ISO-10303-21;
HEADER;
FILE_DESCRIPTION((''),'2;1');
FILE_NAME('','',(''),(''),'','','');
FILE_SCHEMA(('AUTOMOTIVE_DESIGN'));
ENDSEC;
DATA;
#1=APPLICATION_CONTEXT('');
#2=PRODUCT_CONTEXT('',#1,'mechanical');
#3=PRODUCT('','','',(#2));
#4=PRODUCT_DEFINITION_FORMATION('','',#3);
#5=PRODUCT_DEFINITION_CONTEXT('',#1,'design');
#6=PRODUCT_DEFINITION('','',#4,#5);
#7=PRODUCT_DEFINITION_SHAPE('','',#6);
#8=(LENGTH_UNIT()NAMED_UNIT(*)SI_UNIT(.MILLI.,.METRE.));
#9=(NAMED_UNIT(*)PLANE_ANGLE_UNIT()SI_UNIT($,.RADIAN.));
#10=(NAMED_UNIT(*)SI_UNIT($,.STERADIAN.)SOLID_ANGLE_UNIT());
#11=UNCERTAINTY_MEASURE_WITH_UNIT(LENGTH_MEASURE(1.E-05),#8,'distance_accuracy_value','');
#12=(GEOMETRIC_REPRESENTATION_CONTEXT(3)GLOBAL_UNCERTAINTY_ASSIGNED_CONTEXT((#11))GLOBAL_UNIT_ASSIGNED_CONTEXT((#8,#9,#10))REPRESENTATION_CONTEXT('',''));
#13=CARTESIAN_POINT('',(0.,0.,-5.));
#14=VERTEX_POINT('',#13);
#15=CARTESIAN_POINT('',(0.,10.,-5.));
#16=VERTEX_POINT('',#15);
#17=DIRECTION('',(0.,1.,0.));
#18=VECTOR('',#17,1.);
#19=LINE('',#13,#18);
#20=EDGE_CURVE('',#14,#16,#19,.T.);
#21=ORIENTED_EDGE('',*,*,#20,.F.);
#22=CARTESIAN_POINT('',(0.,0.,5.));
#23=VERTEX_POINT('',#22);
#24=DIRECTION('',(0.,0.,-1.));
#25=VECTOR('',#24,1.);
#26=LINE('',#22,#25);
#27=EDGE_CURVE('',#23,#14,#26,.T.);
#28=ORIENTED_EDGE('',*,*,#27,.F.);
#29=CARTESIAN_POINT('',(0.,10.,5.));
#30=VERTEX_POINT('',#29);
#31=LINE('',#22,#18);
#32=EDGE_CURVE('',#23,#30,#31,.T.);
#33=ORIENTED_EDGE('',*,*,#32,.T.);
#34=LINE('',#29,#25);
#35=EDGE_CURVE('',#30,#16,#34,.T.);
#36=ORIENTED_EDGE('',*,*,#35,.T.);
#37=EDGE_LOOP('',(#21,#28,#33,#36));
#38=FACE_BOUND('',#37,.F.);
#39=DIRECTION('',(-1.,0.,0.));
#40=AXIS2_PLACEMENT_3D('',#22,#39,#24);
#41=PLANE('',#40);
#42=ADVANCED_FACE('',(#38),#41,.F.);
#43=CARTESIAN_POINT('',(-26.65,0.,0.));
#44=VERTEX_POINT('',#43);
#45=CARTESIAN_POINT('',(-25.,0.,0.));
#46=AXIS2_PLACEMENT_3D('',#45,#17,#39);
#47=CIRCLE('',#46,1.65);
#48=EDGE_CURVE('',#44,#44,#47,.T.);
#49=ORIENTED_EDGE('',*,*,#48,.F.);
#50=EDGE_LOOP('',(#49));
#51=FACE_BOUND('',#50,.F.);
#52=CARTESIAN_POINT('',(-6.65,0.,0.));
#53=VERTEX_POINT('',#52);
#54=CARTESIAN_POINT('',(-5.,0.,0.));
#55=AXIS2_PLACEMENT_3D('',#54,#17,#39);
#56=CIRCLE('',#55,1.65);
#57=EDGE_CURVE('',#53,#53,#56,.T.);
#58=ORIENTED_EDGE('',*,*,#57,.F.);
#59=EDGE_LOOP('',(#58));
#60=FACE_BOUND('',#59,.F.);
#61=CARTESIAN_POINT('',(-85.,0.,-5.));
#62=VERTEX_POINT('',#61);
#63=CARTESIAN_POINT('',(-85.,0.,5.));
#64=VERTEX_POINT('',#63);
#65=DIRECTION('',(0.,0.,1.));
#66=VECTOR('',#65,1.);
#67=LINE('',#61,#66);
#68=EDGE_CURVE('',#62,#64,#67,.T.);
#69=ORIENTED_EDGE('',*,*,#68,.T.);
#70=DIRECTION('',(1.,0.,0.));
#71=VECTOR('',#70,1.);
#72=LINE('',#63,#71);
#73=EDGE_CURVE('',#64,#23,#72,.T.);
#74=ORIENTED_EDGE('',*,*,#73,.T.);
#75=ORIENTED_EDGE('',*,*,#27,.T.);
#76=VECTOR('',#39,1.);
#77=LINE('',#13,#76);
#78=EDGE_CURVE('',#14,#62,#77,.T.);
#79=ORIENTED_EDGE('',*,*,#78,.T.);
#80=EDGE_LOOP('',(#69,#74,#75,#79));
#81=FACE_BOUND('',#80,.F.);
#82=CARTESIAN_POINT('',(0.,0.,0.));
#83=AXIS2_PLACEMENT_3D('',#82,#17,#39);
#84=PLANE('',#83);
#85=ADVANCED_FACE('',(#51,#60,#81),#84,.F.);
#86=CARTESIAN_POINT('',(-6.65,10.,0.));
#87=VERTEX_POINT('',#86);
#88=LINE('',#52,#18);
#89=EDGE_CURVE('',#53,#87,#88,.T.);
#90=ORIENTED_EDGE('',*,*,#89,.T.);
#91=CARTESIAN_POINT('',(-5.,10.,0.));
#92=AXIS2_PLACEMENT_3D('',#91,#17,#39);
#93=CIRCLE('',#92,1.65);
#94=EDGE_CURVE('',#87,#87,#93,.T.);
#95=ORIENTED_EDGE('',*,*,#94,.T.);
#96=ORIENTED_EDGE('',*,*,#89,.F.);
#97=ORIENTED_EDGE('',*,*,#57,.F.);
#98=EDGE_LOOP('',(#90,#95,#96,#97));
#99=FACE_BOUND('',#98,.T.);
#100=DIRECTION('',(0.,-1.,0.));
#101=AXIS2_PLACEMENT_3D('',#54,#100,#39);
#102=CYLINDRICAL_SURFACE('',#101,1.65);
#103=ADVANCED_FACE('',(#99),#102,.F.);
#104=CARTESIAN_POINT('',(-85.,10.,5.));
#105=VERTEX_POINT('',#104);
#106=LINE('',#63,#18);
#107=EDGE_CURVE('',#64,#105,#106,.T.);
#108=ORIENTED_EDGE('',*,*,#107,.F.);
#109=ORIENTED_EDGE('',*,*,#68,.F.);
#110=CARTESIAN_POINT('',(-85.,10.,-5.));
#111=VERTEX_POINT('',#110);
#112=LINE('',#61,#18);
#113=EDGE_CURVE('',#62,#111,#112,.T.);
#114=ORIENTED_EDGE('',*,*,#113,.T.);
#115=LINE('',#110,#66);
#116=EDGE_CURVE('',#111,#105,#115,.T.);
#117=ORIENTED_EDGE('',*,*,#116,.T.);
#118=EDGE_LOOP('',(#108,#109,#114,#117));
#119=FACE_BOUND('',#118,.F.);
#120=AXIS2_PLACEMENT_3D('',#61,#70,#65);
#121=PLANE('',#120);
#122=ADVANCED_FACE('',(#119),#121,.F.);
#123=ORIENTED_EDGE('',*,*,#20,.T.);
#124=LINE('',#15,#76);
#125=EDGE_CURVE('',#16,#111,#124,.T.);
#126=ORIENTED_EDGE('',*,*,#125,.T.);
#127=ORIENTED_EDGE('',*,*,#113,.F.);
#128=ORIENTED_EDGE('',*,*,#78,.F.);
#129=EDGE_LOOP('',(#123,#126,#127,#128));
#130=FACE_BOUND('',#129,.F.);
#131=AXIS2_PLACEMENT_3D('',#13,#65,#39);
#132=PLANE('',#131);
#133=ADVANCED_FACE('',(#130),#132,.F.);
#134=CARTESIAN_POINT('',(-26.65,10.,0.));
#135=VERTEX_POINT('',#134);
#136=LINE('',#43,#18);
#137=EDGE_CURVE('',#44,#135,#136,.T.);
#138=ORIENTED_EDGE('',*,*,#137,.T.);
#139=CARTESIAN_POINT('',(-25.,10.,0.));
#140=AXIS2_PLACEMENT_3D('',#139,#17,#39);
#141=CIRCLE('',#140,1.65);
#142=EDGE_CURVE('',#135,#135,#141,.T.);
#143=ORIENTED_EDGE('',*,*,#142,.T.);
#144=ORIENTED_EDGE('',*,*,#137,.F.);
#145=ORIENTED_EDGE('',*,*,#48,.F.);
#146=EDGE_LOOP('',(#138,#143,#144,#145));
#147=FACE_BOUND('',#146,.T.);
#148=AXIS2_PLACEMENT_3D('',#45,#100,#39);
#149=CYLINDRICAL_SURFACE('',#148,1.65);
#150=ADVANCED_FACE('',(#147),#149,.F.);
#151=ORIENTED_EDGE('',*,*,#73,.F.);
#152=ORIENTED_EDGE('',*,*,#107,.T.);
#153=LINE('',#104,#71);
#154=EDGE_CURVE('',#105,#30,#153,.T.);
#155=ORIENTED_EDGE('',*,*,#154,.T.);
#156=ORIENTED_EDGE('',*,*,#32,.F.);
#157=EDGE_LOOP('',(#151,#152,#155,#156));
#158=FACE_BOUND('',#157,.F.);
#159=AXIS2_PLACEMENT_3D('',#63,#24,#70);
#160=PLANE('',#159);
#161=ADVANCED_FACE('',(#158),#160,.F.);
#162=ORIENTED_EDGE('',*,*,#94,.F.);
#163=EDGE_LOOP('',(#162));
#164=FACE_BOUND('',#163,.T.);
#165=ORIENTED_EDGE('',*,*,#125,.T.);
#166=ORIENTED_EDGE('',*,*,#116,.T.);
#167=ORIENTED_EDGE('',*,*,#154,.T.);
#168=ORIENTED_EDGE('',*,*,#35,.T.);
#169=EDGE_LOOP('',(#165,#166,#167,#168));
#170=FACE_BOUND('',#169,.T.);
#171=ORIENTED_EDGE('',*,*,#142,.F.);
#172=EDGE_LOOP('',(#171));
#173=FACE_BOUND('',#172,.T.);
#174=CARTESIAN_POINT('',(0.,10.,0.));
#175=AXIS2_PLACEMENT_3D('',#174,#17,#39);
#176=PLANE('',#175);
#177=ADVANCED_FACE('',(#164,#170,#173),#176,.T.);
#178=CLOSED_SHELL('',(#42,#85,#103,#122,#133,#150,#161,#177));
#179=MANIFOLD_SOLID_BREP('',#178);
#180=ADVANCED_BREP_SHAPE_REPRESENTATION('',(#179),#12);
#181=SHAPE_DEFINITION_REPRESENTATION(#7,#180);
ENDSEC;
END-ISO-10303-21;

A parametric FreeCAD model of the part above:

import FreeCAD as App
import Part
import Sketcher

V = App.Vector
Q = App.Units.Quantity


def add_polygon(sketch, points):
    """Adds a closed chain of lines whose ends are joined by coincident constraints."""
    first, n = sketch.GeometryCount, len(points)
    for a, b in zip(points, points[1:] + points[:1]):
        sketch.addGeometry(Part.LineSegment(App.Vector(*a, 0), App.Vector(*b, 0)), False)
    for i in range(n):
        sketch.addConstraint(Sketcher.Constraint("Coincident", first + i, 2, first + (i + 1) % n, 1))

doc = App.newDocument("Part")
body = doc.addObject("PartDesign::Body", "Body")

sketch1 = body.newObject("Sketcher::SketchObject", "Sketch")
sketch1.AttachmentSupport = (doc.getObject("XZ_Plane"), [""])
sketch1.MapMode = "FlatFace"
add_polygon(sketch1, [(-85, -5), (-85, 5), (0, 5), (0, -5)])
sketch1.addGeometry(Part.Circle(V(-5, 0, 0), V(0, 0, 1), 1.6), False)
sketch1.addGeometry(Part.Circle(V(-25, 0, 0), V(0, 0, 1), 1.6), False)
sketch1.addConstraint(Sketcher.Constraint("Vertical", 0))
sketch1.addConstraint(Sketcher.Constraint("Horizontal", 1))
sketch1.addConstraint(Sketcher.Constraint("Vertical", 2))
sketch1.addConstraint(Sketcher.Constraint("Horizontal", 3))
sketch1.addConstraint(Sketcher.Constraint("Equal", 4, 5))
sketch1.addConstraint(Sketcher.Constraint("Symmetric", 1, 2, 2, 2, -1, 1))
sketch1.addConstraint(Sketcher.Constraint("PointOnObject", 4, 3, -1))
sketch1.addConstraint(Sketcher.Constraint("PointOnObject", 5, 3, -1))
sketch1.addConstraint(Sketcher.Constraint("Diameter", 4, Q("3.3 mm")))
sketch1.addConstraint(Sketcher.Constraint("DistanceX", 1, 1, 1, 2, Q("85 mm")))
sketch1.addConstraint(Sketcher.Constraint("DistanceY", 0, 1, 0, 2, Q("10 mm")))
sketch1.addConstraint(Sketcher.Constraint("DistanceX", 4, 3, -1, 1, Q("5 mm")))
sketch1.addConstraint(Sketcher.Constraint("DistanceX", 5, 3, 4, 3, Q("20 mm")))
pad1 = body.newObject("PartDesign::Pad", "Pad")
pad1.Profile = sketch1
pad1.Length = 10
pad1.Reversed = True

doc.recompute()
